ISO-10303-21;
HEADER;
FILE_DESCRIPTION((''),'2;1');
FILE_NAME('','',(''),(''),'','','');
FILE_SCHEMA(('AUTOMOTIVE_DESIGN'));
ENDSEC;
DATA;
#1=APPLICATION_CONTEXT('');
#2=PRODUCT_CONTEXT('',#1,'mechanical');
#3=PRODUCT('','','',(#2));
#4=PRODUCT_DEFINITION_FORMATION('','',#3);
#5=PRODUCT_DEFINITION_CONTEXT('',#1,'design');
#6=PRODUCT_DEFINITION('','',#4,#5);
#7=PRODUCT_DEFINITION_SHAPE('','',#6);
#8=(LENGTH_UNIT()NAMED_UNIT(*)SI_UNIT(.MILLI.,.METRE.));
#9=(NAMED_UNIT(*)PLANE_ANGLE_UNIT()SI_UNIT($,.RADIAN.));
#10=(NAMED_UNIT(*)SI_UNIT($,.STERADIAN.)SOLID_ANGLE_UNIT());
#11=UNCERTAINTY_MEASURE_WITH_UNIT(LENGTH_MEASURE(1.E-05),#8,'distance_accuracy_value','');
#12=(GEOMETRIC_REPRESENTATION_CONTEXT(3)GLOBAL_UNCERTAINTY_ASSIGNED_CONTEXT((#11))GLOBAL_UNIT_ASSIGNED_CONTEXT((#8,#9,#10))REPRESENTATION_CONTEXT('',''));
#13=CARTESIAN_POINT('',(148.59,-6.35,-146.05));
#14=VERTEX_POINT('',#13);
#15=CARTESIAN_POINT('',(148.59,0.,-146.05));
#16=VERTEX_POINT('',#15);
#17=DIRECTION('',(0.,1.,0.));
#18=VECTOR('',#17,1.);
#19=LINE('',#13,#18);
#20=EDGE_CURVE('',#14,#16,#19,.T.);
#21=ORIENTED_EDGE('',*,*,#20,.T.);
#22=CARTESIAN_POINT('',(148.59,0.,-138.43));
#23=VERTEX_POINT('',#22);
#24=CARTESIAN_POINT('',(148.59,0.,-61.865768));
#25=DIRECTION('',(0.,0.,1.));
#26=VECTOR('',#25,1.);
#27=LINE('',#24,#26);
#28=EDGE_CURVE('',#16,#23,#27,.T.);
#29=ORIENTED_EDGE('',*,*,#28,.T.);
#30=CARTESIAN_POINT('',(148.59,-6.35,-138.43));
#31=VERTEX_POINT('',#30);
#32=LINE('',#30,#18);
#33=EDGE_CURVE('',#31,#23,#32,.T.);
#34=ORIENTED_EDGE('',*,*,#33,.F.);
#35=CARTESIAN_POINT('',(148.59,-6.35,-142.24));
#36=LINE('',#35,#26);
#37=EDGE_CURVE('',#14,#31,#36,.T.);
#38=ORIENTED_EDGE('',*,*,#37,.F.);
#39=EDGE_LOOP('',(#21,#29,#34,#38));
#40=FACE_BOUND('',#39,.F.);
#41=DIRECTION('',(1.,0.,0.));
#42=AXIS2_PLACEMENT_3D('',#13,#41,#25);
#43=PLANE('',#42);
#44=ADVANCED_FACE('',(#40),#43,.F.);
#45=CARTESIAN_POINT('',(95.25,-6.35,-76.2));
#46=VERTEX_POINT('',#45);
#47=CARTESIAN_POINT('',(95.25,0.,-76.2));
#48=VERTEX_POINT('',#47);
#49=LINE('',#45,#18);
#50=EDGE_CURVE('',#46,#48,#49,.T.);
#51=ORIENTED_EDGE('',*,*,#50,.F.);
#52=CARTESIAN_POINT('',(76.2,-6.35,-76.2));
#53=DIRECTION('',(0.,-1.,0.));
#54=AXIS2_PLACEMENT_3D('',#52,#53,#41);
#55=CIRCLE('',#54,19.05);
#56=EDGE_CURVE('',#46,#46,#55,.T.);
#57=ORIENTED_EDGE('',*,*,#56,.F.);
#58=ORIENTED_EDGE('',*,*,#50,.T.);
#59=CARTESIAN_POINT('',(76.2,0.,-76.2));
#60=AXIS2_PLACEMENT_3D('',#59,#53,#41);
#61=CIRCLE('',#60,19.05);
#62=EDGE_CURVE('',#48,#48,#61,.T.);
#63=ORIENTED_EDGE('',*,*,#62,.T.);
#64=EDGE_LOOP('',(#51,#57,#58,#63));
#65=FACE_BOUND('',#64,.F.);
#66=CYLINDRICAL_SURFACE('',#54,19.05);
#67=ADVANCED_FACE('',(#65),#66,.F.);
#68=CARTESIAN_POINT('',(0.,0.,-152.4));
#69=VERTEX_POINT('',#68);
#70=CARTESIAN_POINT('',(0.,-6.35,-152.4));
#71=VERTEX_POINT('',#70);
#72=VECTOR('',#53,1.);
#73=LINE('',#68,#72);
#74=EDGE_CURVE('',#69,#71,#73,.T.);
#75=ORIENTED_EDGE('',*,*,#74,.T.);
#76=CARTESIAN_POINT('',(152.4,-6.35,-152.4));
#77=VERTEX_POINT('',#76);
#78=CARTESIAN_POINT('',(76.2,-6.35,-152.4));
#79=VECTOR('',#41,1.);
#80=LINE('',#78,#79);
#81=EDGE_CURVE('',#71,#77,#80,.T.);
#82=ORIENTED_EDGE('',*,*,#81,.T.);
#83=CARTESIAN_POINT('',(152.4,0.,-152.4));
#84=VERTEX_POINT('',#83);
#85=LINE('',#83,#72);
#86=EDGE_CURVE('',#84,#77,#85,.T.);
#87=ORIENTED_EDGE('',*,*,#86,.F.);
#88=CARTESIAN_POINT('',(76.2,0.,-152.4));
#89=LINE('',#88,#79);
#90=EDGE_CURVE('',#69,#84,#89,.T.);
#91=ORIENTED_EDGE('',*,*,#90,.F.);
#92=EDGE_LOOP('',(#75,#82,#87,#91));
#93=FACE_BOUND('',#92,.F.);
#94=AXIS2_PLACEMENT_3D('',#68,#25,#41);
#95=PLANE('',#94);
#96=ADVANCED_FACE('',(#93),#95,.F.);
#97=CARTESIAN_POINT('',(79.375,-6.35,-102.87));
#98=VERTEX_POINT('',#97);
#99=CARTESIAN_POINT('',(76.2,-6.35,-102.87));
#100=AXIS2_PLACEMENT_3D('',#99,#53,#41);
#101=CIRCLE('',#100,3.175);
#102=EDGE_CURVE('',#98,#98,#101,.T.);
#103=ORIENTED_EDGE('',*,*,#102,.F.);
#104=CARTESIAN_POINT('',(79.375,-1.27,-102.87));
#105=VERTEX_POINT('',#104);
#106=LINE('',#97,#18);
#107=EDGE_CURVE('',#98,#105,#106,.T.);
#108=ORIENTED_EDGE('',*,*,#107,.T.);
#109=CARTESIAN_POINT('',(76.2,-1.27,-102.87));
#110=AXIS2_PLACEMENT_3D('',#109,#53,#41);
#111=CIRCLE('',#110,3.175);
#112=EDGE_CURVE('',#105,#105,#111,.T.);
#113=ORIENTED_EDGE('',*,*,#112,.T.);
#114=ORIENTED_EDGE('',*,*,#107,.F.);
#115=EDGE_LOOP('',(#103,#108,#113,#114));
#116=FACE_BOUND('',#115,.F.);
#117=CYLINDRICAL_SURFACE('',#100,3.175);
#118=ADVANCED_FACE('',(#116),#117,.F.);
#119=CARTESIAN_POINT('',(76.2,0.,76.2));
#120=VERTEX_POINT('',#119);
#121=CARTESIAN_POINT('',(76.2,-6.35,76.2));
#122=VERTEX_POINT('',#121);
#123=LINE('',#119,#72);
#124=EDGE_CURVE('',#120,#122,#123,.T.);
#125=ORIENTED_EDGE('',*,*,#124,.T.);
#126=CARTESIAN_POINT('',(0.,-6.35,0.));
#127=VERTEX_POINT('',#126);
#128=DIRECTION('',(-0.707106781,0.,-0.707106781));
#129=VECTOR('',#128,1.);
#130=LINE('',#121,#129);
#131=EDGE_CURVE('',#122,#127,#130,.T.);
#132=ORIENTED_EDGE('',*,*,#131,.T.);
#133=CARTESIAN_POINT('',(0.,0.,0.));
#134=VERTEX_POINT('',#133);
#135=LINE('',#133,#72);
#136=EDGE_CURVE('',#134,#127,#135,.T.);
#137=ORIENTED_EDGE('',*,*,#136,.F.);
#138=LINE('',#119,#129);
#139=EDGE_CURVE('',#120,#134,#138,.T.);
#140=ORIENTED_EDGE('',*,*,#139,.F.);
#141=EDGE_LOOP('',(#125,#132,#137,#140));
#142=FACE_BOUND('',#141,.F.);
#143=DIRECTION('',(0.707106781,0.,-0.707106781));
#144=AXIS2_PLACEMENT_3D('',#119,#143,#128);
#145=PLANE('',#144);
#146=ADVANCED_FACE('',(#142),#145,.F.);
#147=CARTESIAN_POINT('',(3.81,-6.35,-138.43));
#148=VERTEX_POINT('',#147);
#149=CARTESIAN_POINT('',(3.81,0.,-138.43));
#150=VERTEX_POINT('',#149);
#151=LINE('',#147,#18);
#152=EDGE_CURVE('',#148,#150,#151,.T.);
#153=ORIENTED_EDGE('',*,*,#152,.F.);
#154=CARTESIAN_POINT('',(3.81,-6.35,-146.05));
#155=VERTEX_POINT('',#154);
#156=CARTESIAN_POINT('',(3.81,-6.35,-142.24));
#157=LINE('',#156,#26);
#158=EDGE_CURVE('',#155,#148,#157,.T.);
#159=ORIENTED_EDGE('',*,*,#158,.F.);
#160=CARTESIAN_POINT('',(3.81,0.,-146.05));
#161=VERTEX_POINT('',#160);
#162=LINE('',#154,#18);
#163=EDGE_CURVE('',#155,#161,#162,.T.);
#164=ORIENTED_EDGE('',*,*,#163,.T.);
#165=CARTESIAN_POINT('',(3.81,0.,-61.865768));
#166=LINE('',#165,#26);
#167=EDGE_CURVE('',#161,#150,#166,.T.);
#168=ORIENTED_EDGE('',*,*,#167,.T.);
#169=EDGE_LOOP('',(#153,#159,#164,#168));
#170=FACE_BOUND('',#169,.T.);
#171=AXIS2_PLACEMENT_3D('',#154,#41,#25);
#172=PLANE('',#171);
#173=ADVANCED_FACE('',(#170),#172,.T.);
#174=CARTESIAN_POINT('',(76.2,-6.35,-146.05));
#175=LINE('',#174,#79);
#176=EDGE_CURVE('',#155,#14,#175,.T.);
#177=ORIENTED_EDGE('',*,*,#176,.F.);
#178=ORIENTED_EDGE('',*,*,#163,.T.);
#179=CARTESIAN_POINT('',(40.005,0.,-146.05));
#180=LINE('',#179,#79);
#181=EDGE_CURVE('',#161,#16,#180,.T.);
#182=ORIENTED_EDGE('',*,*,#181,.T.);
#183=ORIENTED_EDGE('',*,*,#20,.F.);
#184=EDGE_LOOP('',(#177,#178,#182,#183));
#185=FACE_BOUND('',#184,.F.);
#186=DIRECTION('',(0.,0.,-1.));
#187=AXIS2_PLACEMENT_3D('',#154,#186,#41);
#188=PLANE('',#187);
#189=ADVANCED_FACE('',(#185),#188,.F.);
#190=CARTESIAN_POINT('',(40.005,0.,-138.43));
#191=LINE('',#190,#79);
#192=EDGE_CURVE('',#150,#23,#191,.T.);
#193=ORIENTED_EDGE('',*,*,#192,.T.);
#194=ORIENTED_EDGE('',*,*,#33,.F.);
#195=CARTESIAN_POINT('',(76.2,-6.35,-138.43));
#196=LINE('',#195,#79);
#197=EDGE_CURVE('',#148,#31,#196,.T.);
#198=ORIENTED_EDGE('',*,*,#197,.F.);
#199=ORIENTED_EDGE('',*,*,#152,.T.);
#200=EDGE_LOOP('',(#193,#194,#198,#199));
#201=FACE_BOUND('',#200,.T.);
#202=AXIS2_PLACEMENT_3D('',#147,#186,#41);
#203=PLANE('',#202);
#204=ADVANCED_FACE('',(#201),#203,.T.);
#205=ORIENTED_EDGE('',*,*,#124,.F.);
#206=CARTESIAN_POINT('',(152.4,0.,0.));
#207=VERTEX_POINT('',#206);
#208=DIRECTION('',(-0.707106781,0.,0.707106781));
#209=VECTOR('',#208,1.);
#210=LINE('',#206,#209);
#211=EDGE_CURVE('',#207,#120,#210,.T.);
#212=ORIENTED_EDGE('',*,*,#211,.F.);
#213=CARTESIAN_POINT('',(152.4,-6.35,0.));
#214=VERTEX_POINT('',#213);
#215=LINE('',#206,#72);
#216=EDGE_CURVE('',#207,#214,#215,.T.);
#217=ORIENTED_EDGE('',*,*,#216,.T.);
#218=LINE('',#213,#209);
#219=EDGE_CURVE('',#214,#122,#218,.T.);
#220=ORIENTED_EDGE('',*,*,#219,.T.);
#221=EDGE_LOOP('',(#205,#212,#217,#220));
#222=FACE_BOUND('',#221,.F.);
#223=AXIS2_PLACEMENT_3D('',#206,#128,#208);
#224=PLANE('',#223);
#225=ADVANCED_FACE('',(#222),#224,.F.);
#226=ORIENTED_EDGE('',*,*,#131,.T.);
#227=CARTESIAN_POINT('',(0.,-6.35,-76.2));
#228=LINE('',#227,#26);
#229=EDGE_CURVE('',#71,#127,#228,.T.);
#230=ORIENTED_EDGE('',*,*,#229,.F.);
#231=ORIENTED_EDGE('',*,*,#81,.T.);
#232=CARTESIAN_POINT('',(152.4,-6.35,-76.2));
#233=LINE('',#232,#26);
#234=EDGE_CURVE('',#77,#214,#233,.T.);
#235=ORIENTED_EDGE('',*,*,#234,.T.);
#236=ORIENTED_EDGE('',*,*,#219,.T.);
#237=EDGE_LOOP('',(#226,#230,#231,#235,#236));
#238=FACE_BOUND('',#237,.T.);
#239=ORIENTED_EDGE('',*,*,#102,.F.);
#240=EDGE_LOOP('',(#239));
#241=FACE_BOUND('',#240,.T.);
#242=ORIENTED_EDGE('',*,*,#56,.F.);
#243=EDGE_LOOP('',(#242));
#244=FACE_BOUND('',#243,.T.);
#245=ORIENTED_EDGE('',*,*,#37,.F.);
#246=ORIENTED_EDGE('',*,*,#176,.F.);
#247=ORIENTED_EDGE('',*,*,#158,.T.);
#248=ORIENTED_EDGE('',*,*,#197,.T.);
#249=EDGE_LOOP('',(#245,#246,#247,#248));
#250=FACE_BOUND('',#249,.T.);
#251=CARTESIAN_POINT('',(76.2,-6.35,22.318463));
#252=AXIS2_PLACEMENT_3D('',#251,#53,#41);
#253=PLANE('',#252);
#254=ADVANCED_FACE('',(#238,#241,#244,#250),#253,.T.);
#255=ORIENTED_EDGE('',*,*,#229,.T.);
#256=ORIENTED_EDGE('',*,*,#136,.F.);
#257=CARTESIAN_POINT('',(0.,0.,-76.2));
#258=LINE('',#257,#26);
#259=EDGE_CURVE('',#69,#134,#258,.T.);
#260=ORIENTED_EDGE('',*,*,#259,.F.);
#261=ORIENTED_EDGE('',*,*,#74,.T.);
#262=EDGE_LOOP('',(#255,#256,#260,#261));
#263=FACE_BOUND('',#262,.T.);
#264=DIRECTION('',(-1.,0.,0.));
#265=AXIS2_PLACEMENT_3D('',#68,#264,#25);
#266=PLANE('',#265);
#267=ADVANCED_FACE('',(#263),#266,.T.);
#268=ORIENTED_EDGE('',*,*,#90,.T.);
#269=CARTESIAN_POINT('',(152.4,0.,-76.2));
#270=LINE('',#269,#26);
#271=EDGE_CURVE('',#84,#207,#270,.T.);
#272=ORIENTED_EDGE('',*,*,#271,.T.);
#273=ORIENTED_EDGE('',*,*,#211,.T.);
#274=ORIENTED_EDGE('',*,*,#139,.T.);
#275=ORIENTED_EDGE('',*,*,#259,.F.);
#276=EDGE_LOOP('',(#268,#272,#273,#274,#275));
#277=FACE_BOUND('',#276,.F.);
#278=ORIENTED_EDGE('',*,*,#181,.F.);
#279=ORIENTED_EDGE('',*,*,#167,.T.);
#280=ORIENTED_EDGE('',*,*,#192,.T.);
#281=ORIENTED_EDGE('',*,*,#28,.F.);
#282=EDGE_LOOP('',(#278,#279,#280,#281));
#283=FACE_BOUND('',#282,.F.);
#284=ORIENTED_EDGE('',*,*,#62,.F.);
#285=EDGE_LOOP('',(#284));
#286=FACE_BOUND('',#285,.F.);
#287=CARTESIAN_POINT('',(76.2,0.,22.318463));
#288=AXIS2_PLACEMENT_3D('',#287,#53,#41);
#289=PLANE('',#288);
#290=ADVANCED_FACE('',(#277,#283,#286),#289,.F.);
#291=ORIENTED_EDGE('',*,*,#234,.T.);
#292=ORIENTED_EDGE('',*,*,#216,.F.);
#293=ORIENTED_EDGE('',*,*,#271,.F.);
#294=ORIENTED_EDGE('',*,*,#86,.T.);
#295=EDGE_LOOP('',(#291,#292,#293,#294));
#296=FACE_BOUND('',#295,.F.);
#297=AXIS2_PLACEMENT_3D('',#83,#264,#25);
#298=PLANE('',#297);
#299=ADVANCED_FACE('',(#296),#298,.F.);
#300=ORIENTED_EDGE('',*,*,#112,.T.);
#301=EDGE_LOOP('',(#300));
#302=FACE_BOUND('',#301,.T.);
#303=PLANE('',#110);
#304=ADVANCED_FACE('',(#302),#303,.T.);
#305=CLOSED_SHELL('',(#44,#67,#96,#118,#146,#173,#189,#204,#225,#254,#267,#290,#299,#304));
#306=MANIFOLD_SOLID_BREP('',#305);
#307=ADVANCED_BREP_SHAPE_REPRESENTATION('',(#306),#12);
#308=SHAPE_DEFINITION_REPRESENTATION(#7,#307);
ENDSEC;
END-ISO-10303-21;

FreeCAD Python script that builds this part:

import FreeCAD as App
import Part
import Sketcher

V = App.Vector
Q = App.Units.Quantity

doc = App.newDocument("Part")
body = doc.addObject("PartDesign::Body", "Body")

# Sketch on XZ plane
sketch1 = body.newObject("Sketcher::SketchObject", "Sketch")
sketch1.AttachmentSupport = (doc.getObject("XZ_Plane"), [""])
sketch1.MapMode = "FlatFace"
sketch1.addGeometry(Part.LineSegment(V(76.2, 76.2, 0), V(0, 0, 0)), False)
sketch1.addGeometry(Part.LineSegment(V(0, 0, 0), V(0, -152.4, 0)), False)
sketch1.addGeometry(Part.LineSegment(V(0, -152.4, 0), V(152.4, -152.4, 0)), False)
sketch1.addGeometry(Part.LineSegment(V(152.4, -152.4, 0), V(152.4, 0, 0)), False)
sketch1.addGeometry(Part.LineSegment(V(152.4, 0, 0), V(76.2, 76.2, 0)), False)
sketch1.addConstraint(Sketcher.Constraint("Coincident", 0, 2, 1, 1))
sketch1.addConstraint(Sketcher.Constraint("Coincident", 1, 2, 2, 1))
sketch1.addConstraint(Sketcher.Constraint("Coincident", 2, 2, 3, 1))
sketch1.addConstraint(Sketcher.Constraint("Coincident", 3, 2, 4, 1))
sketch1.addConstraint(Sketcher.Constraint("Coincident", 4, 2, 0, 1))
sketch1.addConstraint(Sketcher.Constraint("Vertical", 1))
sketch1.addConstraint(Sketcher.Constraint("Horizontal", 2))
sketch1.addConstraint(Sketcher.Constraint("Vertical", 3))
sketch1.addConstraint(Sketcher.Constraint("Coincident", 0, 2, -1, 1))
sketch1.addConstraint(Sketcher.Constraint("PointOnObject", 3, 2, -1))
sketch1.addConstraint(Sketcher.Constraint("Perpendicular", 0, 4))
sketch1.addConstraint(Sketcher.Constraint("Equal", 2, 1))
sketch1.addConstraint(Sketcher.Constraint("Equal", 0, 4))
sketch1.addConstraint(Sketcher.Constraint("DistanceX", 2, 1, 2, 2, Q("6 in")))
pad1 = body.newObject("PartDesign::Pad", "Pad")
pad1.Profile = sketch1
pad1.Length = Q("0.25 in")

# Sketch on XZ plane
sketch2 = body.newObject("Sketcher::SketchObject", "Sketch001")
sketch2.AttachmentSupport = (doc.getObject("XZ_Plane"), [""])
sketch2.MapMode = "FlatFace"
sketch2.AttachmentOffset = App.Placement(V(0, 0, 0.25 * 25.4), App.Rotation())
sketch2.addGeometry(Part.Circle(V(76.2, -76.2, 0), V(0, 0, 1), 19.05), False)
sketch2.addConstraint(Sketcher.Constraint("Diameter", 0, Q("1.5 in")))
sketch2.addConstraint(Sketcher.Constraint("DistanceX", -1, 1, 0, 3, Q("3 in")))
sketch2.addConstraint(Sketcher.Constraint("DistanceY", 0, 3, -1, 1, Q("3 in")))
pocket1 = body.newObject("PartDesign::Pocket", "Pocket")
pocket1.Profile = sketch2
pocket1.Type = "ThroughAll"

# Sketch on XZ plane
sketch3 = body.newObject("Sketcher::SketchObject", "Sketch002")
sketch3.AttachmentSupport = (doc.getObject("XZ_Plane"), [""])
sketch3.MapMode = "FlatFace"
sketch3.AttachmentOffset = App.Placement(V(0, 0, 0.25 * 25.4), App.Rotation())
sketch3.addGeometry(Part.Circle(V(76.2, -102.87, 0), V(0, 0, 1), 3.175), False)
sketch3.addConstraint(Sketcher.Constraint("Diameter", 0, Q("0.25 in")))
sketch3.addConstraint(Sketcher.Constraint("DistanceX", -1, 1, 0, 3, Q("3 in")))
sketch3.addConstraint(Sketcher.Constraint("DistanceY", 0, 3, -1, 1, Q("4.05 in")))
pocket2 = body.newObject("PartDesign::Pocket", "Pocket001")
pocket2.Profile = sketch3
pocket2.Length = Q("0.2 in")

# Sketch on XZ plane
sketch4 = body.newObject("Sketcher::SketchObject", "Sketch003")
sketch4.AttachmentSupport = (doc.getObject("XZ_Plane"), [""])
sketch4.MapMode = "FlatFace"
sketch4.AttachmentOffset = App.Placement(V(0, 0, 0.25 * 25.4), App.Rotation())
sketch4.addGeometry(Part.LineSegment(V(3.81, -138.43, 0), V(3.81, -146.05, 0)), False)
sketch4.addGeometry(Part.LineSegment(V(3.81, -146.05, 0), V(148.59, -146.05, 0)), False)
sketch4.addGeometry(Part.LineSegment(V(148.59, -146.05, 0), V(148.59, -138.43, 0)), False)
sketch4.addGeometry(Part.LineSegment(V(148.59, -138.43, 0), V(3.81, -138.43, 0)), False)
sketch4.addConstraint(Sketcher.Constraint("Coincident", 0, 2, 1, 1))
sketch4.addConstraint(Sketcher.Constraint("Coincident", 1, 2, 2, 1))
sketch4.addConstraint(Sketcher.Constraint("Coincident", 2, 2, 3, 1))
sketch4.addConstraint(Sketcher.Constraint("Coincident", 3, 2, 0, 1))
sketch4.addConstraint(Sketcher.Constraint("Vertical", 0))
sketch4.addConstraint(Sketcher.Constraint("Horizontal", 1))
sketch4.addConstraint(Sketcher.Constraint("Vertical", 2))
sketch4.addConstraint(Sketcher.Constraint("Horizontal", 3))
sketch4.addConstraint(Sketcher.Constraint("DistanceX", 1, 1, 1, 2, Q("5.7 in")))
sketch4.addConstraint(Sketcher.Constraint("DistanceY", 0, 2, 0, 1, Q("0.3 in")))
sketch4.addConstraint(Sketcher.Constraint("DistanceX", -1, 1, 0, 2, Q("0.15 in")))
sketch4.addConstraint(Sketcher.Constraint("DistanceY", 0, 2, -1, 1, Q("5.75 in")))
pocket3 = body.newObject("PartDesign::Pocket", "Pocket002")
pocket3.Profile = sketch4
pocket3.Length = Q("1 in")

doc.recompute()
